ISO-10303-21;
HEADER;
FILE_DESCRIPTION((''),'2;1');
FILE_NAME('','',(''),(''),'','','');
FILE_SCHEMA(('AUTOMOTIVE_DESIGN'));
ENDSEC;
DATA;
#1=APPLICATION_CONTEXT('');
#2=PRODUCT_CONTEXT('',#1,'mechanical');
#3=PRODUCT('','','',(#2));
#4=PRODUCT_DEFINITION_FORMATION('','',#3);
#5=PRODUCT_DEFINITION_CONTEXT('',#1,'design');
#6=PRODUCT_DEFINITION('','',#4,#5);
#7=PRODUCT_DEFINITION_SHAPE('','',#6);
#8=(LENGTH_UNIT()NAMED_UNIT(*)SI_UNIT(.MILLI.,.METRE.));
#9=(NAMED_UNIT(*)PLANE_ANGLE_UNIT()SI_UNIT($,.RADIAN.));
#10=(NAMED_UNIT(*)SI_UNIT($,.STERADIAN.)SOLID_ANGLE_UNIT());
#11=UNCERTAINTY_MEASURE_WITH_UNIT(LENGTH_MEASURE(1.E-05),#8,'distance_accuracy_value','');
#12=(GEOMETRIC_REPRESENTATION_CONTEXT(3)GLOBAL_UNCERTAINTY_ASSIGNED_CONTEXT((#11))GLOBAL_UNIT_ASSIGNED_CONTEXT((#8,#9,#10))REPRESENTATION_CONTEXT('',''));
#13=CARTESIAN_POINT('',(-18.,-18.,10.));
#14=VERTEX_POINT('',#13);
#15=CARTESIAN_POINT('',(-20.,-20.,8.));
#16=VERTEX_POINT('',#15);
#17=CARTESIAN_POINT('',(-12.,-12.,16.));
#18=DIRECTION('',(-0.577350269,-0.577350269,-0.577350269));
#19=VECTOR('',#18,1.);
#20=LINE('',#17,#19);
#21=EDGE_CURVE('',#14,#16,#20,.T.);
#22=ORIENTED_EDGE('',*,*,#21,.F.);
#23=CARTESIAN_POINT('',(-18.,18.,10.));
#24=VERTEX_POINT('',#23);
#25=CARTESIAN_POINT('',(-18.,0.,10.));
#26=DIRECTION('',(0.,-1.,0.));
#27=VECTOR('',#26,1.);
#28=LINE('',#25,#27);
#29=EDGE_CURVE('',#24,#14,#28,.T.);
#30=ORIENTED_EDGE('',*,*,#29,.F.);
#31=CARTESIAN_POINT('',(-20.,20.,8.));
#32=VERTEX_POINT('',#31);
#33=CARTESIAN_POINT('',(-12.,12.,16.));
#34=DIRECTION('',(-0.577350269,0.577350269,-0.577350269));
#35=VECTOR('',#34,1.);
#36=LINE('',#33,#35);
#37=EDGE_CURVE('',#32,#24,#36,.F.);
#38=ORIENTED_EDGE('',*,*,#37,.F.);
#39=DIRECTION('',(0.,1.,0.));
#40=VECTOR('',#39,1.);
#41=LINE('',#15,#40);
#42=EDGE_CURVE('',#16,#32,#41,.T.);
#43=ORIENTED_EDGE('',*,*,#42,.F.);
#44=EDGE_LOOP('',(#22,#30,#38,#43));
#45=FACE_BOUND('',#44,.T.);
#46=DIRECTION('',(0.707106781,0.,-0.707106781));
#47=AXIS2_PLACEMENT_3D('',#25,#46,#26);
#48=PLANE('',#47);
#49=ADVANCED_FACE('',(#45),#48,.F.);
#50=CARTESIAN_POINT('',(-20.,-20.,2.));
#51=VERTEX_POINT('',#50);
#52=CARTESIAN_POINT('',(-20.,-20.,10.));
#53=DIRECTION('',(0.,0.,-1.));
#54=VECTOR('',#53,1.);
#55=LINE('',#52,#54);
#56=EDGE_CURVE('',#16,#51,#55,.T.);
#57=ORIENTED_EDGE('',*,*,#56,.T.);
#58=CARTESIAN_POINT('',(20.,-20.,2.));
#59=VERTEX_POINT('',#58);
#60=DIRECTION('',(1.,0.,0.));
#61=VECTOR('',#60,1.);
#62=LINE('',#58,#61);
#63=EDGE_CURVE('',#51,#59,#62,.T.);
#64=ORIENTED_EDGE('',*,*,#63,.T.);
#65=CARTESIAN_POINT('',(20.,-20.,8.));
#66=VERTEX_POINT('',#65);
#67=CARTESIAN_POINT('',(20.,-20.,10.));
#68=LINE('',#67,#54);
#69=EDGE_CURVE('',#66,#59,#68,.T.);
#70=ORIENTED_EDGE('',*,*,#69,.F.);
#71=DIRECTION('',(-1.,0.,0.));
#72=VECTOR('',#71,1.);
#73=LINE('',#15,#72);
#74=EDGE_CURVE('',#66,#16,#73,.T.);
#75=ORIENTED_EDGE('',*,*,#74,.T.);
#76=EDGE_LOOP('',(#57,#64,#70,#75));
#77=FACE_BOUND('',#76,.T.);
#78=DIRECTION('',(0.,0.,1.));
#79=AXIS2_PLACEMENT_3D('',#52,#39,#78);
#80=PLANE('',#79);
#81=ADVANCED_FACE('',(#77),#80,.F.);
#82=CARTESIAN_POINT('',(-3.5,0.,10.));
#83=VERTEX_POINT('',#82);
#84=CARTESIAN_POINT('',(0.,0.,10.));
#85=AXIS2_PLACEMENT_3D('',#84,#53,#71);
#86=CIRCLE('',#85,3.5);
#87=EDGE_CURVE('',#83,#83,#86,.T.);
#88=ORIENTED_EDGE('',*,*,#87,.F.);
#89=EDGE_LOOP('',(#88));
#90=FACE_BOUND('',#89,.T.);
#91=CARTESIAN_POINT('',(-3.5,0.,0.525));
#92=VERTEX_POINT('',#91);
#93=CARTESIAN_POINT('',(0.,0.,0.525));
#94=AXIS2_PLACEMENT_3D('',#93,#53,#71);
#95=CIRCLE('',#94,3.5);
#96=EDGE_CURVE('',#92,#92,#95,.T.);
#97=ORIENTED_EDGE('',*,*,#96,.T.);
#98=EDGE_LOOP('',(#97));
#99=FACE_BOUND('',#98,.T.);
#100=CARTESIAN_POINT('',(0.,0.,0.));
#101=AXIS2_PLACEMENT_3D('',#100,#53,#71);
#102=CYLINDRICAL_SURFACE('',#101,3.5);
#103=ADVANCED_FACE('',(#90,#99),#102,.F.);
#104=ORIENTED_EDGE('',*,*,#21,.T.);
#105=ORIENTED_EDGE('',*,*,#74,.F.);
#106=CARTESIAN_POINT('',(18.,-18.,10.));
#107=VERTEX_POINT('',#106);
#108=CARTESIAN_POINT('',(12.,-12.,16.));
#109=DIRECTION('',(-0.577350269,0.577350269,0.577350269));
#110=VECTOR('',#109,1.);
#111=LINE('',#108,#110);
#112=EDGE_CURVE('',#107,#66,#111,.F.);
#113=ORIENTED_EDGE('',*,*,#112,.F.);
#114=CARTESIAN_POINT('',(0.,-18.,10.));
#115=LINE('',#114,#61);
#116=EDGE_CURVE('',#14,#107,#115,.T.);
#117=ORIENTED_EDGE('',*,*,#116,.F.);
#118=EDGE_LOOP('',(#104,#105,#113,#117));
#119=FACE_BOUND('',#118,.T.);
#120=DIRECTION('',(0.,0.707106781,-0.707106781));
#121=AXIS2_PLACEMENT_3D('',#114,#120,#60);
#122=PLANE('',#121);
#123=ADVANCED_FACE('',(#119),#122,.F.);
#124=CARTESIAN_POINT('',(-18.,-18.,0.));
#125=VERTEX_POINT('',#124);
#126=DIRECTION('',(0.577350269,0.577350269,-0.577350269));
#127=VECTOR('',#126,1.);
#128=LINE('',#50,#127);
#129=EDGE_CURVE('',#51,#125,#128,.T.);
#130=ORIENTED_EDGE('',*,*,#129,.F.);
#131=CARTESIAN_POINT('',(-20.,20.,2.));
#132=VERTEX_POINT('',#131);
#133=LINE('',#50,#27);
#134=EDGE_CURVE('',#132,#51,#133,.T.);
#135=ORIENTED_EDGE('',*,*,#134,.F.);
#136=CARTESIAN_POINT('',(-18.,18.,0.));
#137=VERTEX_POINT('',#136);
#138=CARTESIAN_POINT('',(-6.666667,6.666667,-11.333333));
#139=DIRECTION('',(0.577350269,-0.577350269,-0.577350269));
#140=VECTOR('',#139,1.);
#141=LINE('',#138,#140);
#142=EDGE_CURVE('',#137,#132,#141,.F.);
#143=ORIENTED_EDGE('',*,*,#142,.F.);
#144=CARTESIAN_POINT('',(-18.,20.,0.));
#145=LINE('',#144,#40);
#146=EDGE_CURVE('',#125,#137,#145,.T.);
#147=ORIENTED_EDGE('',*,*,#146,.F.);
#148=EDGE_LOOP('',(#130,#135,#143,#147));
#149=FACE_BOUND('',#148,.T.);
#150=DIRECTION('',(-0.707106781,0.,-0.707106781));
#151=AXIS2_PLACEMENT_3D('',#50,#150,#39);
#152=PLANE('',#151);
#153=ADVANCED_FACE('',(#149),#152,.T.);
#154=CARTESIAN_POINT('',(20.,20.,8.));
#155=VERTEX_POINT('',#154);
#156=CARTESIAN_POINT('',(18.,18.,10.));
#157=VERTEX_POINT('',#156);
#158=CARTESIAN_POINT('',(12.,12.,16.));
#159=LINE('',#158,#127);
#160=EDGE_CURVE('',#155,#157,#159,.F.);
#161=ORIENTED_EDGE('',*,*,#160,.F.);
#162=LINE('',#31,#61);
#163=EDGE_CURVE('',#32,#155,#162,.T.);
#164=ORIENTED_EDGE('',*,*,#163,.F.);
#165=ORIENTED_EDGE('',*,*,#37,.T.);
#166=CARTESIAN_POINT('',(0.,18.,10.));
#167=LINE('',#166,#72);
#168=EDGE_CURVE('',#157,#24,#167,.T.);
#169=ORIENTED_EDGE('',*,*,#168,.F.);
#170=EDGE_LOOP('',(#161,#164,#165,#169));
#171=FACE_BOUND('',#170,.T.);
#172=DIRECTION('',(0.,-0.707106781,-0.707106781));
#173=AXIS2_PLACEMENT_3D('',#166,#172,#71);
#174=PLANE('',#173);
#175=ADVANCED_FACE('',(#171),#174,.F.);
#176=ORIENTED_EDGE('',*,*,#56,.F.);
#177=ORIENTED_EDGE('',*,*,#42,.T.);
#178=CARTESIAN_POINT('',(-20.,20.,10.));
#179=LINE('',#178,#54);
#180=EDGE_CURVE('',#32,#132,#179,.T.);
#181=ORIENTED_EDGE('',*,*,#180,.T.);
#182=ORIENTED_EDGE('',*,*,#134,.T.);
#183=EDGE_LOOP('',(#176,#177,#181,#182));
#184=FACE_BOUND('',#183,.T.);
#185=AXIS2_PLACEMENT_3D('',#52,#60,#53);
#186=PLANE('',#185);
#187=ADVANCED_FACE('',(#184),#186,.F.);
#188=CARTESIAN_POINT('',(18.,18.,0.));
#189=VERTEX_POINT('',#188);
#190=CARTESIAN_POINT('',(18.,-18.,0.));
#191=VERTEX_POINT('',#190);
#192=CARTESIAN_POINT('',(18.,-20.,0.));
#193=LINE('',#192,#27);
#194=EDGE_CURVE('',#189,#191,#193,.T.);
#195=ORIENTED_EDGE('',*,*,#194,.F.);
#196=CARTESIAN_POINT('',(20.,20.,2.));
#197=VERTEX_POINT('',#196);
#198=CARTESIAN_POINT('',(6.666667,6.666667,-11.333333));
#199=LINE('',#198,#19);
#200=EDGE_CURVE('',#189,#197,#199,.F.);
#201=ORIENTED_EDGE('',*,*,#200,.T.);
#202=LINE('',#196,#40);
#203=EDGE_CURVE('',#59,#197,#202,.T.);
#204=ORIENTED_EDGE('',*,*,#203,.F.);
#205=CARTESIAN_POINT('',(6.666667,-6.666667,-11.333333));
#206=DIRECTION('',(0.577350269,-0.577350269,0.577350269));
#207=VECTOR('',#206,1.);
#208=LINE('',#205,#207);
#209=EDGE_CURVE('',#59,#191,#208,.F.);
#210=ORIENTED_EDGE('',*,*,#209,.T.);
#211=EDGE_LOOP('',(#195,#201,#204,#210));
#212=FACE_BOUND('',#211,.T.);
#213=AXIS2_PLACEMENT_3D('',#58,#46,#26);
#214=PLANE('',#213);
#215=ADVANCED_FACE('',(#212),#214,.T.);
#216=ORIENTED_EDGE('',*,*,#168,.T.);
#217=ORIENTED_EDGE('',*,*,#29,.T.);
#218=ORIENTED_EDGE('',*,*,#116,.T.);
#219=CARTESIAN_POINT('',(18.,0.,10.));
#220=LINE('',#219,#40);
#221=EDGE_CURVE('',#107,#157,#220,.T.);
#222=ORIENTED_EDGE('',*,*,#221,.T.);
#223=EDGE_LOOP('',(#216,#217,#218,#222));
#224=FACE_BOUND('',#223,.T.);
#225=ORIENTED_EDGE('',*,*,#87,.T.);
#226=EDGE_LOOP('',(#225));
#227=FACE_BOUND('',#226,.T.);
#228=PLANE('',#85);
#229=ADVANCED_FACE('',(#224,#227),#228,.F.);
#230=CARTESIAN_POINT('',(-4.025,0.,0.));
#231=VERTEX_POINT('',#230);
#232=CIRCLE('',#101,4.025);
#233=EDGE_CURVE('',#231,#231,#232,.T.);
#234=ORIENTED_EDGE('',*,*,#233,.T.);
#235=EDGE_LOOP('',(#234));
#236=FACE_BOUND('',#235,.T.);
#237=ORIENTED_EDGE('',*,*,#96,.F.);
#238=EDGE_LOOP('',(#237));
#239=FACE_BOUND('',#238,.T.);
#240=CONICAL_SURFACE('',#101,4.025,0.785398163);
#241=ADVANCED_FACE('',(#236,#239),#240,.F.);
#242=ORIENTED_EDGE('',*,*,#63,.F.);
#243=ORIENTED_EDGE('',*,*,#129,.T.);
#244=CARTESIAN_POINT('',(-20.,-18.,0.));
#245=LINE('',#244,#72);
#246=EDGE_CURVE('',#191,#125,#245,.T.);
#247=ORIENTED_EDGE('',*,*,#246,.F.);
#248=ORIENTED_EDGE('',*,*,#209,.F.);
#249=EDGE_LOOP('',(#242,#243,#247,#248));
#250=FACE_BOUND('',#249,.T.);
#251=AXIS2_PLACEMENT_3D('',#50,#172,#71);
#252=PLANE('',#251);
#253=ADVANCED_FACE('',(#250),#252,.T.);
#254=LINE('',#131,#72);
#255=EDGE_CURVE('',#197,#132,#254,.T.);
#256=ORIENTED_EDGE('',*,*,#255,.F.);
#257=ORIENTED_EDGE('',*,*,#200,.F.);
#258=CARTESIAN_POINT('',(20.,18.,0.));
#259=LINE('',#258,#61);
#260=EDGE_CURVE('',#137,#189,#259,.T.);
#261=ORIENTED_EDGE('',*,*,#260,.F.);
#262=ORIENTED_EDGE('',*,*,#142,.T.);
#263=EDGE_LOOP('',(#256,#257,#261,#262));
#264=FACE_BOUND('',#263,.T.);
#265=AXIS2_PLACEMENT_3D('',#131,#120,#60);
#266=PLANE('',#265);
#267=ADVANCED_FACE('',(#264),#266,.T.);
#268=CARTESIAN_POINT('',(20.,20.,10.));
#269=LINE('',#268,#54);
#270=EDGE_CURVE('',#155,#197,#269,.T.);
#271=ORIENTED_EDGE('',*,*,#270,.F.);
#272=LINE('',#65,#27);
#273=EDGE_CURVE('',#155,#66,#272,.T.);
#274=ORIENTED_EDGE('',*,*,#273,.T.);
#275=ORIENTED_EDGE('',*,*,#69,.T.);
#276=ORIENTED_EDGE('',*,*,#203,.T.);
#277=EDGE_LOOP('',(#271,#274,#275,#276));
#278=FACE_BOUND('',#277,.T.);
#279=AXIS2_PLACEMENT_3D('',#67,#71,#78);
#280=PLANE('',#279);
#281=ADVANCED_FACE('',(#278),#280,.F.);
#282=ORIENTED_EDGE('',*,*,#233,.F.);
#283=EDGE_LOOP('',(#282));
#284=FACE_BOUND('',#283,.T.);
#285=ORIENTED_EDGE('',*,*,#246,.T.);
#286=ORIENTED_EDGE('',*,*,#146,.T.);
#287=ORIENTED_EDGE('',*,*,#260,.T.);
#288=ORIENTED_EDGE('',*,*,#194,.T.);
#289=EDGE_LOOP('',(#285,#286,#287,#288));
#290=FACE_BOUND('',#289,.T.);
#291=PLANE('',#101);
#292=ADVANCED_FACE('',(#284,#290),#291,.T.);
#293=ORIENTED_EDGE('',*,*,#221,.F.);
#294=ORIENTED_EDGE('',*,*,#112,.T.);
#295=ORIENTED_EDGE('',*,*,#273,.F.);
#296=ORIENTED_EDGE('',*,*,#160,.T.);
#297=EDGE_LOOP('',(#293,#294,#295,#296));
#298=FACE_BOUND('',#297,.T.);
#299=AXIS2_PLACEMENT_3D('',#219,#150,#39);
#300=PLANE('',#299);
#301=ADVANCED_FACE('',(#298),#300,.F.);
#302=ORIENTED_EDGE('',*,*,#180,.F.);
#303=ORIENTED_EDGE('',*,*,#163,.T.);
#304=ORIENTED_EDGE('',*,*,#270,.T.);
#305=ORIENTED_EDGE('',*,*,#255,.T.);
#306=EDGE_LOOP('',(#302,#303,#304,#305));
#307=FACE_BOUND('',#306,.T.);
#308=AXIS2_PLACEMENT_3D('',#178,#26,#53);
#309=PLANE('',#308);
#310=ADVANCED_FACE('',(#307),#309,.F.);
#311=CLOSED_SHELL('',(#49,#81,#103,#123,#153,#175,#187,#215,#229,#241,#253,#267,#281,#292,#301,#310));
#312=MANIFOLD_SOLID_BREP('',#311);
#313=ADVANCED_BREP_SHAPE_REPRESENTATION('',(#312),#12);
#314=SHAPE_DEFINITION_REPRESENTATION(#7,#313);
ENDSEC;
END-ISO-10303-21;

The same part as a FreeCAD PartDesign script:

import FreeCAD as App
import Part
import Sketcher

V = App.Vector
Q = App.Units.Quantity


def edges_at(feature, points):
    """Names of the edges that pass closest to the given points."""
    edges = feature.Shape.Edges
    near = lambda p: min(range(len(edges)), key=lambda i: edges[i].distToShape(Part.Vertex(*p))[0])
    return sorted({f"Edge{near(p) + 1}" for p in points})

doc = App.newDocument("Part")
body = doc.addObject("PartDesign::Body", "Body")

# Sketch on XY plane
sketch1 = body.newObject("Sketcher::SketchObject", "Sketch")
sketch1.AttachmentSupport = (doc.getObject("XY_Plane"), [""])
sketch1.MapMode = "FlatFace"
sketch1.addGeometry([
    Part.LineSegment(V(-20, 20, 0), V(-20, -20, 0)),
    Part.LineSegment(V(-20, -20, 0), V(20, -20, 0)),
    Part.LineSegment(V(20, -20, 0), V(20, 20, 0)),
    Part.LineSegment(V(20, 20, 0), V(-20, 20, 0)),
], False)
sketch1.addConstraint([
    Sketcher.Constraint("Coincident", 0, 2, 1, 1),
    Sketcher.Constraint("Coincident", 1, 2, 2, 1),
    Sketcher.Constraint("Coincident", 2, 2, 3, 1),
    Sketcher.Constraint("Coincident", 3, 2, 0, 1),
    Sketcher.Constraint("Vertical", 0),
    Sketcher.Constraint("Horizontal", 1),
    Sketcher.Constraint("Vertical", 2),
    Sketcher.Constraint("Horizontal", 3),
    Sketcher.Constraint("Symmetric", 0, 2, 2, 2, -1, 1),
    Sketcher.Constraint("Equal", 3, 0),
    Sketcher.Constraint("DistanceX", 1, 1, 1, 2, Q("40 mm")),
])
pad1 = body.newObject("PartDesign::Pad", "Pad")
pad1.Profile = sketch1
pad1.Length = 10

# Sketch on XY plane
sketch2 = body.newObject("Sketcher::SketchObject", "Sketch001")
sketch2.AttachmentSupport = (doc.getObject("XY_Plane"), [""])
sketch2.MapMode = "FlatFace"
sketch2.addGeometry(Part.Circle(V(0, 0, 0), V(0, 0, 1), 3.5), False)
sketch2.addConstraint([
    Sketcher.Constraint("Coincident", 0, 3, -1, 1),
    Sketcher.Constraint("Diameter", 0, Q("7 mm")),
])
doc.recompute()
hole = body.newObject("PartDesign::Hole", "Hole")
hole.Profile = sketch2
hole.ThreadType = "None"
hole.Diameter = 7
hole.DepthType = "ThroughAll"
hole.HoleCutType = "Countersink"
hole.HoleCutDiameter = 8.05
hole.HoleCutCountersinkAngle = 90
hole.Reversed = True
doc.recompute()

chamfer = body.newObject("PartDesign::Chamfer", "Chamfer")
chamfer.Base = (hole, edges_at(hole, [
    (-20, 0, 10),
    (0, -20, 10),
    (20, 0, 10),
    (0, -20, 0),
    (-20, 0, 0),
    (0, 20, 0),
    (20, 0, 0),
    (0, 20, 10),
]))
chamfer.Size = 2

doc.recompute()
